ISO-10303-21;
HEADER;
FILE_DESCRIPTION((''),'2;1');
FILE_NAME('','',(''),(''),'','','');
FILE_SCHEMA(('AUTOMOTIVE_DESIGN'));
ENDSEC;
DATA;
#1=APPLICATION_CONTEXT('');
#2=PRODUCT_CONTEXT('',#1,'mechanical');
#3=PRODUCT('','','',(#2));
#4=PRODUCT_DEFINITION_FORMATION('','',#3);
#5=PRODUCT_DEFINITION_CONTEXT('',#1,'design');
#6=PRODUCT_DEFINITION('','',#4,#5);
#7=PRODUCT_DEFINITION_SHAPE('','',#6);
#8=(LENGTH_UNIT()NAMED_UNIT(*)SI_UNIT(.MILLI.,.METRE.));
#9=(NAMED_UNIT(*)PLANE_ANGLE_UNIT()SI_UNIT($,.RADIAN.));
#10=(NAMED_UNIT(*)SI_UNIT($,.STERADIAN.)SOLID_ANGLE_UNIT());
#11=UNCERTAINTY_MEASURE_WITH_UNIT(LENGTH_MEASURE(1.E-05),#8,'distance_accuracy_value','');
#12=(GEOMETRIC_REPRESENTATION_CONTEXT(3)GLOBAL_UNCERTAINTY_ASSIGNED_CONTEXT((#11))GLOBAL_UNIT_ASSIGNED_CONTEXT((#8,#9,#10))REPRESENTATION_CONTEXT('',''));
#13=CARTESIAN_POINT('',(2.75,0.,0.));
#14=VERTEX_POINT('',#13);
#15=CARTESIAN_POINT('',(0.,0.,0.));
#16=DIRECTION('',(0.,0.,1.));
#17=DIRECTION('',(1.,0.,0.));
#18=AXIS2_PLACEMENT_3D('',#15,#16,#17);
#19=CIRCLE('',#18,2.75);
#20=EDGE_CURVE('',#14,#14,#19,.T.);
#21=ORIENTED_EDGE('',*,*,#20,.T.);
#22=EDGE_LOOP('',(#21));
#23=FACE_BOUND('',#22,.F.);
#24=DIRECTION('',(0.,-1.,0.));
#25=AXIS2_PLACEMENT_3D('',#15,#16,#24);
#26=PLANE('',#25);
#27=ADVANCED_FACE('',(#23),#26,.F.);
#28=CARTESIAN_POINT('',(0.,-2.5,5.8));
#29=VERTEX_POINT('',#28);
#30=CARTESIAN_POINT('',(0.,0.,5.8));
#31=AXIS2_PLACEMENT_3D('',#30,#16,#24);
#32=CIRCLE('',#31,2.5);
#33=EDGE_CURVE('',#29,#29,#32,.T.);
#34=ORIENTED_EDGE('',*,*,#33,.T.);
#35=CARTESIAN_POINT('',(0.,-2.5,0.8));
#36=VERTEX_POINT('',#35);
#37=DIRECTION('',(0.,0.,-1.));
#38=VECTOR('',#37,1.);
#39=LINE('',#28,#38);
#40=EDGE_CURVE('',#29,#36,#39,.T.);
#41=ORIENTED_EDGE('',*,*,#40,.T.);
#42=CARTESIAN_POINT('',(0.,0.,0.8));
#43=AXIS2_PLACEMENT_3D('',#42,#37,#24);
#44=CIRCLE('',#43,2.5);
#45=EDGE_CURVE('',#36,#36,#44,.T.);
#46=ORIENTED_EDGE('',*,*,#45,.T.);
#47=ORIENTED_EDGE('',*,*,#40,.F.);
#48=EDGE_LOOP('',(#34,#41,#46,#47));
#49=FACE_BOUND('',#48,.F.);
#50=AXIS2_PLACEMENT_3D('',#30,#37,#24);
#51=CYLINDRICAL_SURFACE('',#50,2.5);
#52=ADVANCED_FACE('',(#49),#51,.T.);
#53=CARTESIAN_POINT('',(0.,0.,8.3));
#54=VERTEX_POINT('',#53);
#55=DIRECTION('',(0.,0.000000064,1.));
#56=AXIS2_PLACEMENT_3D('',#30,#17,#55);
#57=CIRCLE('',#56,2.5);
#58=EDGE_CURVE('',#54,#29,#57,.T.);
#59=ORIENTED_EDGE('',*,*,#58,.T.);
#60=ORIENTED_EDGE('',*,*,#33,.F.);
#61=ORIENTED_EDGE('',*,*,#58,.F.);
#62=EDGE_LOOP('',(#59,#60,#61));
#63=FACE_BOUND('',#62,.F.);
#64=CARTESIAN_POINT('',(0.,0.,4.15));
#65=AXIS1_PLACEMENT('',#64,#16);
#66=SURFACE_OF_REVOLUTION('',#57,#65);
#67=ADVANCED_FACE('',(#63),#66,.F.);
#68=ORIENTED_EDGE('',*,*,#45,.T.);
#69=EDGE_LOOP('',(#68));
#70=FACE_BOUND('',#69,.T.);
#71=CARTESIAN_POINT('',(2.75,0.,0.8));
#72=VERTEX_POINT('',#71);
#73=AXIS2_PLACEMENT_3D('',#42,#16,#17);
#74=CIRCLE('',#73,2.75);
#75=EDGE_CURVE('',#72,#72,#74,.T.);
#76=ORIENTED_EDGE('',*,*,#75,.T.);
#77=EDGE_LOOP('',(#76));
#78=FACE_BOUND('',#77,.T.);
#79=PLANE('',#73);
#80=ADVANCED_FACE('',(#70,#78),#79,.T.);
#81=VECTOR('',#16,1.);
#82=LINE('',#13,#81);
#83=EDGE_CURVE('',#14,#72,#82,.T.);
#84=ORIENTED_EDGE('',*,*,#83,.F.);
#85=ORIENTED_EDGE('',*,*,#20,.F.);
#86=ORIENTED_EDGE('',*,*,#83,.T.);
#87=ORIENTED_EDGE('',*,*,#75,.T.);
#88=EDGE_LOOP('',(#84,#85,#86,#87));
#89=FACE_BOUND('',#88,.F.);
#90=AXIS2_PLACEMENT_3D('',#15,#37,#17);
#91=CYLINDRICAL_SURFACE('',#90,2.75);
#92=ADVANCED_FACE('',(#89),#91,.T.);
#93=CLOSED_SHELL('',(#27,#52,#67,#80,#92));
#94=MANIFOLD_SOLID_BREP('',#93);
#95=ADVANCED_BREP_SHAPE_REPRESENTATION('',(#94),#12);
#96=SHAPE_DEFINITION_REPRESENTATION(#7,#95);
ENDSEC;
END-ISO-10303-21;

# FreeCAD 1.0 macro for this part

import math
import FreeCAD as App
import Part
import Sketcher
Q = App.Units.Quantity

doc = App.newDocument("Part")
body = doc.addObject("PartDesign::Body", "Body")

# Sketch on XY plane
sketch1 = doc.addObject("Sketcher::SketchObject", "Sketch")
body.addObject(sketch1)
sketch1.AttachmentSupport = (doc.XY_Plane, [""])
sketch1.MapMode = "FlatFace"
sketch1.addGeometry(Part.Circle(App.Vector(0, 0, 0), App.Vector(0, 0, 1), 2.8), False)
sketch1.addConstraint([
    Sketcher.Constraint("Coincident", 0, 3, -1, 1),
    Sketcher.Constraint("Diameter", 0, Q("5.5 mm")),
])
pad1 = doc.addObject("PartDesign::Pad", "Pad")
body.addObject(pad1)
pad1.Profile = sketch1
pad1.Length = 0.8

# Sketch on YZ plane
sketch2 = doc.addObject("Sketcher::SketchObject", "Sketch001")
body.addObject(sketch2)
sketch2.AttachmentSupport = (doc.YZ_Plane, [""])
sketch2.MapMode = "FlatFace"
sketch2.addGeometry([
    Part.LineSegment(App.Vector(-2.5, 0, 0), App.Vector(0, 0, 0)),
    Part.LineSegment(App.Vector(0, 0, 0), App.Vector(0, 8.3, 0)),
    Part.ArcOfCircle(Part.Circle(App.Vector(0, 5.8, 0), App.Vector(0, 0, 1), 2.5), math.radians(90), math.radians(180)),
    Part.LineSegment(App.Vector(-2.5, 5.8, 0), App.Vector(-2.5, 0, 0)),
], False)
sketch2.addConstraint([
    Sketcher.Constraint("Coincident", 0, 2, 1, 1),
    Sketcher.Constraint("Coincident", 1, 2, 2, 1),
    Sketcher.Constraint("Tangent", 2, 2, 3, 1),
    Sketcher.Constraint("Coincident", 3, 2, 0, 1),
    Sketcher.Constraint("Horizontal", 0),
    Sketcher.Constraint("Vertical", 1),
    Sketcher.Constraint("Vertical", 3),
    Sketcher.Constraint("Coincident", 0, 2, -1, 1),
    Sketcher.Constraint("PointOnObject", 2, 3, -2),
    Sketcher.Constraint("Radius", 2, Q("2.5 mm")),
    Sketcher.Constraint("DistanceY", 1, 1, 1, 2, Q("8.3 mm")),
])
revolution = doc.addObject("PartDesign::Revolution", "Revolution")
body.addObject(revolution)
revolution.Profile = sketch2
revolution.ReferenceAxis = (sketch2, ["V_Axis"])
revolution.Angle = 360

doc.recompute()
